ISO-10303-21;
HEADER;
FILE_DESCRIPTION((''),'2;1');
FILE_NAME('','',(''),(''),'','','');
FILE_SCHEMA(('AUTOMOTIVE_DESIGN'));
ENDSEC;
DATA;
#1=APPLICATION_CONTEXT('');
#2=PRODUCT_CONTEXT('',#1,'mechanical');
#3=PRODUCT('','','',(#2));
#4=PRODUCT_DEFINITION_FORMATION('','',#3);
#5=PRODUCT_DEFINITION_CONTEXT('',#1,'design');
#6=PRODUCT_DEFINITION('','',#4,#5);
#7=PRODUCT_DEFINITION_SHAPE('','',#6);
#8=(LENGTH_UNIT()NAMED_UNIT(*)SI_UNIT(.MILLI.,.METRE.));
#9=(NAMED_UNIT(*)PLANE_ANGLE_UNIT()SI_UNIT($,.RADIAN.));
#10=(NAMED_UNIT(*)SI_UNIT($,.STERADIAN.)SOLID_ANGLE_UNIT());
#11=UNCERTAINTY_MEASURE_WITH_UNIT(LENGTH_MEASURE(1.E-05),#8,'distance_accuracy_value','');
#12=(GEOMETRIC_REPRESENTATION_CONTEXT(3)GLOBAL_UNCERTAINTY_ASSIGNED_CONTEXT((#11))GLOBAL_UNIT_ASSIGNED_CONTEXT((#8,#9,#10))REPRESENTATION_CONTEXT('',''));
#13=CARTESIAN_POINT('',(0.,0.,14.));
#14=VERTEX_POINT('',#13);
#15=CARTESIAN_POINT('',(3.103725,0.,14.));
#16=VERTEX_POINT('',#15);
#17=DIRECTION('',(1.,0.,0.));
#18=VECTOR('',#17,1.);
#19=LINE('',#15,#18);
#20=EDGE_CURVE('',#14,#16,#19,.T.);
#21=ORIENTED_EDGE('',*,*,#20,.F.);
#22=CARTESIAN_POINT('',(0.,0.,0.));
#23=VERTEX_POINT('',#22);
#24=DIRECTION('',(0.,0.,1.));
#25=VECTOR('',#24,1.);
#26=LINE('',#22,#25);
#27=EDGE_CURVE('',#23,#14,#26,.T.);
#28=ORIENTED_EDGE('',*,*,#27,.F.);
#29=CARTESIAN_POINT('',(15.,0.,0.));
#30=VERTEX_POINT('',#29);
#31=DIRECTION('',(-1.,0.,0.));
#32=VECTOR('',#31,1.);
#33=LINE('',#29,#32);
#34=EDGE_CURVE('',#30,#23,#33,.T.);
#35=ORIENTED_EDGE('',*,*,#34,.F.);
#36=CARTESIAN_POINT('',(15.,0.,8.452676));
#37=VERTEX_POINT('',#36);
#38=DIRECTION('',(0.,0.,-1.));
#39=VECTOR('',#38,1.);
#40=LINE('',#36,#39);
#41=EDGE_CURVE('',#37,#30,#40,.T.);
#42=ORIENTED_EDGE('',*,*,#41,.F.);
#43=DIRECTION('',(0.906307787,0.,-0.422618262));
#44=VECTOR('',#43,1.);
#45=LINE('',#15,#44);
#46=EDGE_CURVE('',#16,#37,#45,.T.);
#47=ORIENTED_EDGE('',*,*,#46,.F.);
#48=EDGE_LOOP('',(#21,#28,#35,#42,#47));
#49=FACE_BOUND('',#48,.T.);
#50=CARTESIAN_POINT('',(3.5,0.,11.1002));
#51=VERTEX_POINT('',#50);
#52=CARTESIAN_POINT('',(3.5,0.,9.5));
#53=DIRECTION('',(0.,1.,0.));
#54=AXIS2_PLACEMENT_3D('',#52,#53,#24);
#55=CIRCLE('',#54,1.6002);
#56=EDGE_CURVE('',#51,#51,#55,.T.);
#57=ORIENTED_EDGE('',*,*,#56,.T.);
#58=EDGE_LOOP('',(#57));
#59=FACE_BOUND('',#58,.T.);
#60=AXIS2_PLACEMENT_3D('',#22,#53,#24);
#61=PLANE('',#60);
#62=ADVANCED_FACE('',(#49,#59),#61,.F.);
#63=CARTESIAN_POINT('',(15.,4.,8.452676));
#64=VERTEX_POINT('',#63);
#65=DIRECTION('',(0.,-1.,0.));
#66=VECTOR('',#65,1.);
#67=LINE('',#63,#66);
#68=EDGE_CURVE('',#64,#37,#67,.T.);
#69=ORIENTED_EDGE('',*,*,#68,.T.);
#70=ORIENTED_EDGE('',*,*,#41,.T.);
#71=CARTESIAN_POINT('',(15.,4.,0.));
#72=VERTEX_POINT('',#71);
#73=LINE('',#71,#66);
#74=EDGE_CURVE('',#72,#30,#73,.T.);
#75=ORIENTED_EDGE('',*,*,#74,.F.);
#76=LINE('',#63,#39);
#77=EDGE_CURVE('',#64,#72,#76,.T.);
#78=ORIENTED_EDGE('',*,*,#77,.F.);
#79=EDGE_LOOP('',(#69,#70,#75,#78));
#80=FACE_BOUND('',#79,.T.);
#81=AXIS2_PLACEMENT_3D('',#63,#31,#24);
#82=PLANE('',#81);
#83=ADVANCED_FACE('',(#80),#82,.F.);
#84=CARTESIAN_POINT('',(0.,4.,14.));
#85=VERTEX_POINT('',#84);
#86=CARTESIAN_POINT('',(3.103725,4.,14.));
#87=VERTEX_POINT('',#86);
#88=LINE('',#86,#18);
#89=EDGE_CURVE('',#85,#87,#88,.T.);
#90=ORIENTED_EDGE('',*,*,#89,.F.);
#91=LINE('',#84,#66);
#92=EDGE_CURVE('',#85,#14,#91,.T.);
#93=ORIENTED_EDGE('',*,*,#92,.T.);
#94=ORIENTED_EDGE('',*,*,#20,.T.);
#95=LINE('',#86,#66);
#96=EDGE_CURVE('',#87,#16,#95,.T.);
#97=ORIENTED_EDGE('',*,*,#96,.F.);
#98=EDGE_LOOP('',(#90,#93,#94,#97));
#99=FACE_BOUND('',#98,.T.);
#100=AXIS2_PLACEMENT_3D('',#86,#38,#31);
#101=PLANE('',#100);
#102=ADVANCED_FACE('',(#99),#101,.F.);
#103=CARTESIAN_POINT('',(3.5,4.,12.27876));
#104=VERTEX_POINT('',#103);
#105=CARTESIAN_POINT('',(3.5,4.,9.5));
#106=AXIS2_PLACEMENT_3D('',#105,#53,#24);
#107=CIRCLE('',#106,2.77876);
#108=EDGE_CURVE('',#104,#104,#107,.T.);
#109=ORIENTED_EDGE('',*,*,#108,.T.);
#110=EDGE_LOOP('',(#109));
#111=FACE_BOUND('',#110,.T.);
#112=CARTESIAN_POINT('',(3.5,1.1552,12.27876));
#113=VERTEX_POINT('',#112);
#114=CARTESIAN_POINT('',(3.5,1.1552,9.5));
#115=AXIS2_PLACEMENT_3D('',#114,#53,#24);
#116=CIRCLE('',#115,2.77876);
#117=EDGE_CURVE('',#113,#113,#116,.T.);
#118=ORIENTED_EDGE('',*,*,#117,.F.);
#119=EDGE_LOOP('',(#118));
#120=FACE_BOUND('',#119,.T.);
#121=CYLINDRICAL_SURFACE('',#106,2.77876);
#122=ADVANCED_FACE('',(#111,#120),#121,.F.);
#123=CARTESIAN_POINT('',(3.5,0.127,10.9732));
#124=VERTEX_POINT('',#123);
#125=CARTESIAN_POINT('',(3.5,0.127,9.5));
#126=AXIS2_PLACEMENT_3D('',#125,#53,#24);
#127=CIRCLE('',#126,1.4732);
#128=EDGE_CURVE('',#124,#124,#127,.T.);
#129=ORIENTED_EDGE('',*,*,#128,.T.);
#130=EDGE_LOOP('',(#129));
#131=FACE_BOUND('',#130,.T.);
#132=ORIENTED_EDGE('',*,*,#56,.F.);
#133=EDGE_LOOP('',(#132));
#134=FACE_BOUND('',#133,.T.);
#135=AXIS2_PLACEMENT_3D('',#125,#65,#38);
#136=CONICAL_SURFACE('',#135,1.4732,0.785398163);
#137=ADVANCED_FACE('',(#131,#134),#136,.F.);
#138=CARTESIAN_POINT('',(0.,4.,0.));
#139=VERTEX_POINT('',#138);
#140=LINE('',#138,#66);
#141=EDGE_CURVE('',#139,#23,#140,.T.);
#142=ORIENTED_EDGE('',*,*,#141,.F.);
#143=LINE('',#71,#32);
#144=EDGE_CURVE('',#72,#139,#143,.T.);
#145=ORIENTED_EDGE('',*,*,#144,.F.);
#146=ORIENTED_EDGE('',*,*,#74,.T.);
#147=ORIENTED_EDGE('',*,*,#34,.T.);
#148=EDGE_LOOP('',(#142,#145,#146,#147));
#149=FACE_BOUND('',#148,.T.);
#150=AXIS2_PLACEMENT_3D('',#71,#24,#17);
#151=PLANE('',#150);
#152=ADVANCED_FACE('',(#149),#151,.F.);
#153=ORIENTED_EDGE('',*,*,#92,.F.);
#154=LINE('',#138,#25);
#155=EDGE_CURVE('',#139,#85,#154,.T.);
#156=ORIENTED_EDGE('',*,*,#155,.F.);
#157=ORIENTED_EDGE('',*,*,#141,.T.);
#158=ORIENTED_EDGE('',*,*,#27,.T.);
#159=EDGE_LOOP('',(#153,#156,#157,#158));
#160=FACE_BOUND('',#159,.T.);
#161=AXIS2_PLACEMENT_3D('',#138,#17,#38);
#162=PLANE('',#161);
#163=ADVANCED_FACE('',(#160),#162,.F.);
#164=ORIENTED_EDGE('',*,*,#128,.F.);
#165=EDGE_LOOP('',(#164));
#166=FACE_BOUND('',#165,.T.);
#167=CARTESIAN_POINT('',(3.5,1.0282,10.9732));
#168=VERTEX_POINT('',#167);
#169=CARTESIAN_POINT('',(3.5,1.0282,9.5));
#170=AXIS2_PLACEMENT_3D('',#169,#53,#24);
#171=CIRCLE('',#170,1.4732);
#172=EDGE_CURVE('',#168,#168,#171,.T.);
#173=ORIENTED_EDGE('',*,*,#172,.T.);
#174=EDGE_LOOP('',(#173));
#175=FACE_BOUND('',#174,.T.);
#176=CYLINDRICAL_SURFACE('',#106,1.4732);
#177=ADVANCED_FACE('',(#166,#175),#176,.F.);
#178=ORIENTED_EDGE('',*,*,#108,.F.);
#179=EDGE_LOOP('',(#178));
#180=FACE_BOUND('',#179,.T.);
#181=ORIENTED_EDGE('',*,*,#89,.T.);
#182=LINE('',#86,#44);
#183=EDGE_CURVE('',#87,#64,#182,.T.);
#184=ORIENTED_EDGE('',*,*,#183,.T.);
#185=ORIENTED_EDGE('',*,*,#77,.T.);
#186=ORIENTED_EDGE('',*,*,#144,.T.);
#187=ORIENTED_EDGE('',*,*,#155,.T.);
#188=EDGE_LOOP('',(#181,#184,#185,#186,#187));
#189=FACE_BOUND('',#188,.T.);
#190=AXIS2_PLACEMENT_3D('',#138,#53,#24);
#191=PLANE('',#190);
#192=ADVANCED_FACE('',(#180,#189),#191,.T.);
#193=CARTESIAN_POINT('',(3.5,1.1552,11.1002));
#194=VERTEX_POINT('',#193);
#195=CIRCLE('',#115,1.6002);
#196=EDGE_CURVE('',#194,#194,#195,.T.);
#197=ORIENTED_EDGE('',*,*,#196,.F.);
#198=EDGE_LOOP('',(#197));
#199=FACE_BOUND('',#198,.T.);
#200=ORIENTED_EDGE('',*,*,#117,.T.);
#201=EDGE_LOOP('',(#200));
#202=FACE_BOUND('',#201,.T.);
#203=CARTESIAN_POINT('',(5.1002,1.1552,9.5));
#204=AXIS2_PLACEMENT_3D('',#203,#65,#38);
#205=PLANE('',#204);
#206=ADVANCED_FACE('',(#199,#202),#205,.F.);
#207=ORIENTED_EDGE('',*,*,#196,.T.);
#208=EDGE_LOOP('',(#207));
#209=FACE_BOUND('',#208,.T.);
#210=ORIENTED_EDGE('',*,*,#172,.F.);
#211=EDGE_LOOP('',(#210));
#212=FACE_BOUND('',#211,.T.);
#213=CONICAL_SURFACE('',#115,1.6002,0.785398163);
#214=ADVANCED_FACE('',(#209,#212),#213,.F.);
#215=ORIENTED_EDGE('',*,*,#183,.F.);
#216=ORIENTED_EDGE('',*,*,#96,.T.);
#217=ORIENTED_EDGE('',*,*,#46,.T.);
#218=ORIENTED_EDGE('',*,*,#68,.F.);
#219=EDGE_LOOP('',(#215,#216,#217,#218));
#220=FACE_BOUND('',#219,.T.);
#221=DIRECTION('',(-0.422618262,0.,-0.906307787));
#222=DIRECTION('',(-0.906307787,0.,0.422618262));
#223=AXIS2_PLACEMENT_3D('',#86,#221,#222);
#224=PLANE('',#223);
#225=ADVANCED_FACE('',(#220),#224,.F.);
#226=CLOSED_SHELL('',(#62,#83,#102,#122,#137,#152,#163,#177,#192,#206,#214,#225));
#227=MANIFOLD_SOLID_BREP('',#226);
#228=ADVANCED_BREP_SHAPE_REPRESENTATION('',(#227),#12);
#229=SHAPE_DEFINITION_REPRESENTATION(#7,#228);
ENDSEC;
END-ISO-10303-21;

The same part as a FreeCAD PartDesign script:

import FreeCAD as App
import Part
import Sketcher
from FreeCAD import Vector
Q = App.Units.Quantity

doc = App.newDocument("Part")
body = doc.addObject("PartDesign::Body", "Body")

# Sketch on XZ plane
sketch1 = doc.addObject("Sketcher::SketchObject", "Sketch")
body.addObject(sketch1)
sketch1.AttachmentSupport = (doc.XZ_Plane, [""])
sketch1.MapMode = "FlatFace"
sketch1.addGeometry(Part.LineSegment(Vector(0, 0, 0), Vector(0, 14, 0)), False)
sketch1.addGeometry(Part.LineSegment(Vector(0, 14, 0), Vector(3.1, 14, 0)), False)
sketch1.addGeometry(Part.LineSegment(Vector(3.1, 14, 0), Vector(15, 8.5, 0)), False)
sketch1.addGeometry(Part.LineSegment(Vector(15, 8.5, 0), Vector(15, 0, 0)), False)
sketch1.addGeometry(Part.LineSegment(Vector(15, 0, 0), Vector(0, 0, 0)), False)
sketch1.addConstraint(Sketcher.Constraint("Coincident", 0, 2, 1, 1))
sketch1.addConstraint(Sketcher.Constraint("Coincident", 1, 2, 2, 1))
sketch1.addConstraint(Sketcher.Constraint("Coincident", 2, 2, 3, 1))
sketch1.addConstraint(Sketcher.Constraint("Coincident", 3, 2, 4, 1))
sketch1.addConstraint(Sketcher.Constraint("Coincident", 4, 2, 0, 1))
sketch1.addConstraint(Sketcher.Constraint("Vertical", 0))
sketch1.addConstraint(Sketcher.Constraint("Horizontal", 1))
sketch1.addConstraint(Sketcher.Constraint("Vertical", 3))
sketch1.addConstraint(Sketcher.Constraint("Horizontal", 4))
sketch1.addConstraint(Sketcher.Constraint("Coincident", 4, 2, -1, 1))
sketch1.addConstraint(Sketcher.Constraint("DistanceX", 4, 2, 4, 1, Q("15 mm")))
sketch1.addConstraint(Sketcher.Constraint("DistanceY", 0, 1, 0, 2, Q("14 mm")))
sketch1.addConstraint(Sketcher.Constraint("Angle", 2, Q("-25 deg")))
sketch1.addConstraint(Sketcher.Constraint("DistanceX", 1, 1, 1, 2, Q("3.103725 mm")))
pad1 = doc.addObject("PartDesign::Pad", "Pad")
body.addObject(pad1)
pad1.Profile = sketch1
pad1.Length = 4
pad1.Reversed = True

# Sketch on YZ plane
sketch2 = doc.addObject("Sketcher::SketchObject", "Sketch001")
body.addObject(sketch2)
sketch2.AttachmentSupport = (doc.YZ_Plane, [""])
sketch2.MapMode = "FlatFace"
sketch2.AttachmentOffset = App.Placement(Vector(0, 0, 3.5), App.Rotation())
sketch2.addGeometry(Part.LineSegment(Vector(0, 9.5, 0), Vector(4, 9.5, 0)), False)
sketch2.addGeometry(Part.LineSegment(Vector(4, 9.5, 0), Vector(4, 12.28, 0)), False)
sketch2.addGeometry(Part.LineSegment(Vector(4, 12.28, 0), Vector(1.16, 12.28, 0)), False)
sketch2.addGeometry(Part.LineSegment(Vector(1.16, 12.28, 0), Vector(1.16, 11.1, 0)), False)
sketch2.addGeometry(Part.LineSegment(Vector(1.16, 11.1, 0), Vector(1.03, 10.97, 0)), False)
sketch2.addGeometry(Part.LineSegment(Vector(1.03, 10.97, 0), Vector(0.13, 10.97, 0)), False)
sketch2.addGeometry(Part.LineSegment(Vector(0.13, 10.97, 0), Vector(0, 11.1, 0)), False)
sketch2.addGeometry(Part.LineSegment(Vector(0, 11.1, 0), Vector(0, 9.5, 0)), False)
sketch2.addGeometry(Part.LineSegment(Vector(4, 9.5, 0), Vector(0, 9.5, 0)), True)  # axis
sketch2.addConstraint(Sketcher.Constraint("Coincident", 0, 2, 1, 1))
sketch2.addConstraint(Sketcher.Constraint("Coincident", 1, 2, 2, 1))
sketch2.addConstraint(Sketcher.Constraint("Coincident", 2, 2, 3, 1))
sketch2.addConstraint(Sketcher.Constraint("Coincident", 3, 2, 4, 1))
sketch2.addConstraint(Sketcher.Constraint("Coincident", 4, 2, 5, 1))
sketch2.addConstraint(Sketcher.Constraint("Coincident", 5, 2, 6, 1))
sketch2.addConstraint(Sketcher.Constraint("Coincident", 6, 2, 7, 1))
sketch2.addConstraint(Sketcher.Constraint("Coincident", 7, 2, 0, 1))
sketch2.addConstraint(Sketcher.Constraint("Horizontal", 0))
sketch2.addConstraint(Sketcher.Constraint("Vertical", 1))
sketch2.addConstraint(Sketcher.Constraint("Horizontal", 2))
sketch2.addConstraint(Sketcher.Constraint("Vertical", 3))
sketch2.addConstraint(Sketcher.Constraint("Horizontal", 5))
sketch2.addConstraint(Sketcher.Constraint("Vertical", 7))
sketch2.addConstraint(Sketcher.Constraint("Horizontal", 8))
sketch2.addConstraint(Sketcher.Constraint("Coincident", 8, 1, 0, 2))
sketch2.addConstraint(Sketcher.Constraint("PointOnObject", 6, 2, -2))
sketch2.addConstraint(Sketcher.Constraint("PointOnObject", 8, 2, -2))
sketch2.addConstraint(Sketcher.Constraint("Perpendicular", 4, 6))
sketch2.addConstraint(Sketcher.Constraint("Horizontal", 3, 2, 6, 2))
sketch2.addConstraint(Sketcher.Constraint("Equal", 4, 6))
sketch2.addConstraint(Sketcher.Constraint("DistanceX", 0, 1, 0, 2, Q("4 mm")))
sketch2.addConstraint(Sketcher.Constraint("DistanceY", -1, 1, 0, 2, Q("9.5 mm")))
sketch2.addConstraint(Sketcher.Constraint("DistanceX", 2, 2, 2, 1, Q("2.8448 mm")))
sketch2.addConstraint(Sketcher.Constraint("DistanceX", 5, 2, 5, 1, Q("0.9012 mm")))
sketch2.addConstraint(Sketcher.Constraint("DistanceY", 7, 2, 7, 1, Q("1.6002 mm")))
sketch2.addConstraint(Sketcher.Constraint("DistanceY", 1, 1, 1, 2, Q("2.77876 mm")))
groove = doc.addObject("PartDesign::Groove", "Groove")
body.addObject(groove)
groove.Profile = sketch2
groove.ReferenceAxis = (sketch2, ["Axis0"])
groove.Angle = 360

doc.recompute()
